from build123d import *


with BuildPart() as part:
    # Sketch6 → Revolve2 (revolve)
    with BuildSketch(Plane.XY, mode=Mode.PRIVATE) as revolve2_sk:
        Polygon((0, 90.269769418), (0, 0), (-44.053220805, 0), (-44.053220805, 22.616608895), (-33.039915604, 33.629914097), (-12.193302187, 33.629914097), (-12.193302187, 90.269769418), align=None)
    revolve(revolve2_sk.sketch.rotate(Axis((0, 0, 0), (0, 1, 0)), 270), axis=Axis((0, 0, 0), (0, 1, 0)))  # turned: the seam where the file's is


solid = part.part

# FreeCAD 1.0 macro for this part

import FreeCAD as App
import Part
import Sketcher
Q = App.Units.Quantity


def add_polygon(sketch, points):
    """Adds a closed chain of lines whose ends are joined by coincident constraints."""
    first, n = sketch.GeometryCount, len(points)
    for a, b in zip(points, points[1:] + points[:1]):
        sketch.addGeometry(Part.LineSegment(App.Vector(*a, 0), App.Vector(*b, 0)), False)
    for i in range(n):
        sketch.addConstraint(Sketcher.Constraint("Coincident", first + i, 2, first + (i + 1) % n, 1))

doc = App.newDocument("Part")
params = doc.addObject("Spreadsheet::Sheet", "Params")
for row, (alias, value) in enumerate([
    ("revolution_angle", "360 deg"),
], start=1):
    params.set(f"A{row}", alias)
    params.set(f"B{row}", "=" + value)
    params.setAlias(f"B{row}", alias)

body = doc.addObject("PartDesign::Body", "Body")

# Sketch on XY plane
sketch1 = body.newObject("Sketcher::SketchObject", "Sketch")
sketch1.AttachmentSupport = (doc.getObject("XY_Plane"), [""])
sketch1.MapMode = "FlatFace"
add_polygon(sketch1, [(0, 0), (0, 90), (-12, 90), (-12, 34), (-33, 34), (-44, 23), (-44, 0)])  # lines 0-6
sketch1.addConstraint(Sketcher.Constraint("Vertical", 0))
sketch1.addConstraint(Sketcher.Constraint("Horizontal", 1))
sketch1.addConstraint(Sketcher.Constraint("Vertical", 2))
sketch1.addConstraint(Sketcher.Constraint("Horizontal", 3))
sketch1.addConstraint(Sketcher.Constraint("Vertical", 5))
sketch1.addConstraint(Sketcher.Constraint("Horizontal", 6))
sketch1.addConstraint(Sketcher.Constraint("Coincident", 6, 2, -1, 1))
sketch1.addConstraint(Sketcher.Constraint("Angle", 4, Q("-135 deg")))
sketch1.addConstraint(Sketcher.Constraint("DistanceX", 6, 1, 6, 2, 44.053221))
sketch1.addConstraint(Sketcher.Constraint("DistanceY", 0, 1, 0, 2, 90.269769))
sketch1.addConstraint(Sketcher.Constraint("DistanceY", 5, 2, 5, 1, 22.616609))
sketch1.addConstraint(Sketcher.Constraint("DistanceX", 1, 2, 1, 1, 12.193302))
sketch1.addConstraint(Sketcher.Constraint("DistanceX", 3, 2, 3, 1, 20.846613))
revolution = body.newObject("PartDesign::Revolution", "Revolution")
revolution.Profile = sketch1
revolution.ReferenceAxis = (sketch1, ["V_Axis"])
revolution.setExpression("Angle", "Params.revolution_angle")

doc.recompute()
